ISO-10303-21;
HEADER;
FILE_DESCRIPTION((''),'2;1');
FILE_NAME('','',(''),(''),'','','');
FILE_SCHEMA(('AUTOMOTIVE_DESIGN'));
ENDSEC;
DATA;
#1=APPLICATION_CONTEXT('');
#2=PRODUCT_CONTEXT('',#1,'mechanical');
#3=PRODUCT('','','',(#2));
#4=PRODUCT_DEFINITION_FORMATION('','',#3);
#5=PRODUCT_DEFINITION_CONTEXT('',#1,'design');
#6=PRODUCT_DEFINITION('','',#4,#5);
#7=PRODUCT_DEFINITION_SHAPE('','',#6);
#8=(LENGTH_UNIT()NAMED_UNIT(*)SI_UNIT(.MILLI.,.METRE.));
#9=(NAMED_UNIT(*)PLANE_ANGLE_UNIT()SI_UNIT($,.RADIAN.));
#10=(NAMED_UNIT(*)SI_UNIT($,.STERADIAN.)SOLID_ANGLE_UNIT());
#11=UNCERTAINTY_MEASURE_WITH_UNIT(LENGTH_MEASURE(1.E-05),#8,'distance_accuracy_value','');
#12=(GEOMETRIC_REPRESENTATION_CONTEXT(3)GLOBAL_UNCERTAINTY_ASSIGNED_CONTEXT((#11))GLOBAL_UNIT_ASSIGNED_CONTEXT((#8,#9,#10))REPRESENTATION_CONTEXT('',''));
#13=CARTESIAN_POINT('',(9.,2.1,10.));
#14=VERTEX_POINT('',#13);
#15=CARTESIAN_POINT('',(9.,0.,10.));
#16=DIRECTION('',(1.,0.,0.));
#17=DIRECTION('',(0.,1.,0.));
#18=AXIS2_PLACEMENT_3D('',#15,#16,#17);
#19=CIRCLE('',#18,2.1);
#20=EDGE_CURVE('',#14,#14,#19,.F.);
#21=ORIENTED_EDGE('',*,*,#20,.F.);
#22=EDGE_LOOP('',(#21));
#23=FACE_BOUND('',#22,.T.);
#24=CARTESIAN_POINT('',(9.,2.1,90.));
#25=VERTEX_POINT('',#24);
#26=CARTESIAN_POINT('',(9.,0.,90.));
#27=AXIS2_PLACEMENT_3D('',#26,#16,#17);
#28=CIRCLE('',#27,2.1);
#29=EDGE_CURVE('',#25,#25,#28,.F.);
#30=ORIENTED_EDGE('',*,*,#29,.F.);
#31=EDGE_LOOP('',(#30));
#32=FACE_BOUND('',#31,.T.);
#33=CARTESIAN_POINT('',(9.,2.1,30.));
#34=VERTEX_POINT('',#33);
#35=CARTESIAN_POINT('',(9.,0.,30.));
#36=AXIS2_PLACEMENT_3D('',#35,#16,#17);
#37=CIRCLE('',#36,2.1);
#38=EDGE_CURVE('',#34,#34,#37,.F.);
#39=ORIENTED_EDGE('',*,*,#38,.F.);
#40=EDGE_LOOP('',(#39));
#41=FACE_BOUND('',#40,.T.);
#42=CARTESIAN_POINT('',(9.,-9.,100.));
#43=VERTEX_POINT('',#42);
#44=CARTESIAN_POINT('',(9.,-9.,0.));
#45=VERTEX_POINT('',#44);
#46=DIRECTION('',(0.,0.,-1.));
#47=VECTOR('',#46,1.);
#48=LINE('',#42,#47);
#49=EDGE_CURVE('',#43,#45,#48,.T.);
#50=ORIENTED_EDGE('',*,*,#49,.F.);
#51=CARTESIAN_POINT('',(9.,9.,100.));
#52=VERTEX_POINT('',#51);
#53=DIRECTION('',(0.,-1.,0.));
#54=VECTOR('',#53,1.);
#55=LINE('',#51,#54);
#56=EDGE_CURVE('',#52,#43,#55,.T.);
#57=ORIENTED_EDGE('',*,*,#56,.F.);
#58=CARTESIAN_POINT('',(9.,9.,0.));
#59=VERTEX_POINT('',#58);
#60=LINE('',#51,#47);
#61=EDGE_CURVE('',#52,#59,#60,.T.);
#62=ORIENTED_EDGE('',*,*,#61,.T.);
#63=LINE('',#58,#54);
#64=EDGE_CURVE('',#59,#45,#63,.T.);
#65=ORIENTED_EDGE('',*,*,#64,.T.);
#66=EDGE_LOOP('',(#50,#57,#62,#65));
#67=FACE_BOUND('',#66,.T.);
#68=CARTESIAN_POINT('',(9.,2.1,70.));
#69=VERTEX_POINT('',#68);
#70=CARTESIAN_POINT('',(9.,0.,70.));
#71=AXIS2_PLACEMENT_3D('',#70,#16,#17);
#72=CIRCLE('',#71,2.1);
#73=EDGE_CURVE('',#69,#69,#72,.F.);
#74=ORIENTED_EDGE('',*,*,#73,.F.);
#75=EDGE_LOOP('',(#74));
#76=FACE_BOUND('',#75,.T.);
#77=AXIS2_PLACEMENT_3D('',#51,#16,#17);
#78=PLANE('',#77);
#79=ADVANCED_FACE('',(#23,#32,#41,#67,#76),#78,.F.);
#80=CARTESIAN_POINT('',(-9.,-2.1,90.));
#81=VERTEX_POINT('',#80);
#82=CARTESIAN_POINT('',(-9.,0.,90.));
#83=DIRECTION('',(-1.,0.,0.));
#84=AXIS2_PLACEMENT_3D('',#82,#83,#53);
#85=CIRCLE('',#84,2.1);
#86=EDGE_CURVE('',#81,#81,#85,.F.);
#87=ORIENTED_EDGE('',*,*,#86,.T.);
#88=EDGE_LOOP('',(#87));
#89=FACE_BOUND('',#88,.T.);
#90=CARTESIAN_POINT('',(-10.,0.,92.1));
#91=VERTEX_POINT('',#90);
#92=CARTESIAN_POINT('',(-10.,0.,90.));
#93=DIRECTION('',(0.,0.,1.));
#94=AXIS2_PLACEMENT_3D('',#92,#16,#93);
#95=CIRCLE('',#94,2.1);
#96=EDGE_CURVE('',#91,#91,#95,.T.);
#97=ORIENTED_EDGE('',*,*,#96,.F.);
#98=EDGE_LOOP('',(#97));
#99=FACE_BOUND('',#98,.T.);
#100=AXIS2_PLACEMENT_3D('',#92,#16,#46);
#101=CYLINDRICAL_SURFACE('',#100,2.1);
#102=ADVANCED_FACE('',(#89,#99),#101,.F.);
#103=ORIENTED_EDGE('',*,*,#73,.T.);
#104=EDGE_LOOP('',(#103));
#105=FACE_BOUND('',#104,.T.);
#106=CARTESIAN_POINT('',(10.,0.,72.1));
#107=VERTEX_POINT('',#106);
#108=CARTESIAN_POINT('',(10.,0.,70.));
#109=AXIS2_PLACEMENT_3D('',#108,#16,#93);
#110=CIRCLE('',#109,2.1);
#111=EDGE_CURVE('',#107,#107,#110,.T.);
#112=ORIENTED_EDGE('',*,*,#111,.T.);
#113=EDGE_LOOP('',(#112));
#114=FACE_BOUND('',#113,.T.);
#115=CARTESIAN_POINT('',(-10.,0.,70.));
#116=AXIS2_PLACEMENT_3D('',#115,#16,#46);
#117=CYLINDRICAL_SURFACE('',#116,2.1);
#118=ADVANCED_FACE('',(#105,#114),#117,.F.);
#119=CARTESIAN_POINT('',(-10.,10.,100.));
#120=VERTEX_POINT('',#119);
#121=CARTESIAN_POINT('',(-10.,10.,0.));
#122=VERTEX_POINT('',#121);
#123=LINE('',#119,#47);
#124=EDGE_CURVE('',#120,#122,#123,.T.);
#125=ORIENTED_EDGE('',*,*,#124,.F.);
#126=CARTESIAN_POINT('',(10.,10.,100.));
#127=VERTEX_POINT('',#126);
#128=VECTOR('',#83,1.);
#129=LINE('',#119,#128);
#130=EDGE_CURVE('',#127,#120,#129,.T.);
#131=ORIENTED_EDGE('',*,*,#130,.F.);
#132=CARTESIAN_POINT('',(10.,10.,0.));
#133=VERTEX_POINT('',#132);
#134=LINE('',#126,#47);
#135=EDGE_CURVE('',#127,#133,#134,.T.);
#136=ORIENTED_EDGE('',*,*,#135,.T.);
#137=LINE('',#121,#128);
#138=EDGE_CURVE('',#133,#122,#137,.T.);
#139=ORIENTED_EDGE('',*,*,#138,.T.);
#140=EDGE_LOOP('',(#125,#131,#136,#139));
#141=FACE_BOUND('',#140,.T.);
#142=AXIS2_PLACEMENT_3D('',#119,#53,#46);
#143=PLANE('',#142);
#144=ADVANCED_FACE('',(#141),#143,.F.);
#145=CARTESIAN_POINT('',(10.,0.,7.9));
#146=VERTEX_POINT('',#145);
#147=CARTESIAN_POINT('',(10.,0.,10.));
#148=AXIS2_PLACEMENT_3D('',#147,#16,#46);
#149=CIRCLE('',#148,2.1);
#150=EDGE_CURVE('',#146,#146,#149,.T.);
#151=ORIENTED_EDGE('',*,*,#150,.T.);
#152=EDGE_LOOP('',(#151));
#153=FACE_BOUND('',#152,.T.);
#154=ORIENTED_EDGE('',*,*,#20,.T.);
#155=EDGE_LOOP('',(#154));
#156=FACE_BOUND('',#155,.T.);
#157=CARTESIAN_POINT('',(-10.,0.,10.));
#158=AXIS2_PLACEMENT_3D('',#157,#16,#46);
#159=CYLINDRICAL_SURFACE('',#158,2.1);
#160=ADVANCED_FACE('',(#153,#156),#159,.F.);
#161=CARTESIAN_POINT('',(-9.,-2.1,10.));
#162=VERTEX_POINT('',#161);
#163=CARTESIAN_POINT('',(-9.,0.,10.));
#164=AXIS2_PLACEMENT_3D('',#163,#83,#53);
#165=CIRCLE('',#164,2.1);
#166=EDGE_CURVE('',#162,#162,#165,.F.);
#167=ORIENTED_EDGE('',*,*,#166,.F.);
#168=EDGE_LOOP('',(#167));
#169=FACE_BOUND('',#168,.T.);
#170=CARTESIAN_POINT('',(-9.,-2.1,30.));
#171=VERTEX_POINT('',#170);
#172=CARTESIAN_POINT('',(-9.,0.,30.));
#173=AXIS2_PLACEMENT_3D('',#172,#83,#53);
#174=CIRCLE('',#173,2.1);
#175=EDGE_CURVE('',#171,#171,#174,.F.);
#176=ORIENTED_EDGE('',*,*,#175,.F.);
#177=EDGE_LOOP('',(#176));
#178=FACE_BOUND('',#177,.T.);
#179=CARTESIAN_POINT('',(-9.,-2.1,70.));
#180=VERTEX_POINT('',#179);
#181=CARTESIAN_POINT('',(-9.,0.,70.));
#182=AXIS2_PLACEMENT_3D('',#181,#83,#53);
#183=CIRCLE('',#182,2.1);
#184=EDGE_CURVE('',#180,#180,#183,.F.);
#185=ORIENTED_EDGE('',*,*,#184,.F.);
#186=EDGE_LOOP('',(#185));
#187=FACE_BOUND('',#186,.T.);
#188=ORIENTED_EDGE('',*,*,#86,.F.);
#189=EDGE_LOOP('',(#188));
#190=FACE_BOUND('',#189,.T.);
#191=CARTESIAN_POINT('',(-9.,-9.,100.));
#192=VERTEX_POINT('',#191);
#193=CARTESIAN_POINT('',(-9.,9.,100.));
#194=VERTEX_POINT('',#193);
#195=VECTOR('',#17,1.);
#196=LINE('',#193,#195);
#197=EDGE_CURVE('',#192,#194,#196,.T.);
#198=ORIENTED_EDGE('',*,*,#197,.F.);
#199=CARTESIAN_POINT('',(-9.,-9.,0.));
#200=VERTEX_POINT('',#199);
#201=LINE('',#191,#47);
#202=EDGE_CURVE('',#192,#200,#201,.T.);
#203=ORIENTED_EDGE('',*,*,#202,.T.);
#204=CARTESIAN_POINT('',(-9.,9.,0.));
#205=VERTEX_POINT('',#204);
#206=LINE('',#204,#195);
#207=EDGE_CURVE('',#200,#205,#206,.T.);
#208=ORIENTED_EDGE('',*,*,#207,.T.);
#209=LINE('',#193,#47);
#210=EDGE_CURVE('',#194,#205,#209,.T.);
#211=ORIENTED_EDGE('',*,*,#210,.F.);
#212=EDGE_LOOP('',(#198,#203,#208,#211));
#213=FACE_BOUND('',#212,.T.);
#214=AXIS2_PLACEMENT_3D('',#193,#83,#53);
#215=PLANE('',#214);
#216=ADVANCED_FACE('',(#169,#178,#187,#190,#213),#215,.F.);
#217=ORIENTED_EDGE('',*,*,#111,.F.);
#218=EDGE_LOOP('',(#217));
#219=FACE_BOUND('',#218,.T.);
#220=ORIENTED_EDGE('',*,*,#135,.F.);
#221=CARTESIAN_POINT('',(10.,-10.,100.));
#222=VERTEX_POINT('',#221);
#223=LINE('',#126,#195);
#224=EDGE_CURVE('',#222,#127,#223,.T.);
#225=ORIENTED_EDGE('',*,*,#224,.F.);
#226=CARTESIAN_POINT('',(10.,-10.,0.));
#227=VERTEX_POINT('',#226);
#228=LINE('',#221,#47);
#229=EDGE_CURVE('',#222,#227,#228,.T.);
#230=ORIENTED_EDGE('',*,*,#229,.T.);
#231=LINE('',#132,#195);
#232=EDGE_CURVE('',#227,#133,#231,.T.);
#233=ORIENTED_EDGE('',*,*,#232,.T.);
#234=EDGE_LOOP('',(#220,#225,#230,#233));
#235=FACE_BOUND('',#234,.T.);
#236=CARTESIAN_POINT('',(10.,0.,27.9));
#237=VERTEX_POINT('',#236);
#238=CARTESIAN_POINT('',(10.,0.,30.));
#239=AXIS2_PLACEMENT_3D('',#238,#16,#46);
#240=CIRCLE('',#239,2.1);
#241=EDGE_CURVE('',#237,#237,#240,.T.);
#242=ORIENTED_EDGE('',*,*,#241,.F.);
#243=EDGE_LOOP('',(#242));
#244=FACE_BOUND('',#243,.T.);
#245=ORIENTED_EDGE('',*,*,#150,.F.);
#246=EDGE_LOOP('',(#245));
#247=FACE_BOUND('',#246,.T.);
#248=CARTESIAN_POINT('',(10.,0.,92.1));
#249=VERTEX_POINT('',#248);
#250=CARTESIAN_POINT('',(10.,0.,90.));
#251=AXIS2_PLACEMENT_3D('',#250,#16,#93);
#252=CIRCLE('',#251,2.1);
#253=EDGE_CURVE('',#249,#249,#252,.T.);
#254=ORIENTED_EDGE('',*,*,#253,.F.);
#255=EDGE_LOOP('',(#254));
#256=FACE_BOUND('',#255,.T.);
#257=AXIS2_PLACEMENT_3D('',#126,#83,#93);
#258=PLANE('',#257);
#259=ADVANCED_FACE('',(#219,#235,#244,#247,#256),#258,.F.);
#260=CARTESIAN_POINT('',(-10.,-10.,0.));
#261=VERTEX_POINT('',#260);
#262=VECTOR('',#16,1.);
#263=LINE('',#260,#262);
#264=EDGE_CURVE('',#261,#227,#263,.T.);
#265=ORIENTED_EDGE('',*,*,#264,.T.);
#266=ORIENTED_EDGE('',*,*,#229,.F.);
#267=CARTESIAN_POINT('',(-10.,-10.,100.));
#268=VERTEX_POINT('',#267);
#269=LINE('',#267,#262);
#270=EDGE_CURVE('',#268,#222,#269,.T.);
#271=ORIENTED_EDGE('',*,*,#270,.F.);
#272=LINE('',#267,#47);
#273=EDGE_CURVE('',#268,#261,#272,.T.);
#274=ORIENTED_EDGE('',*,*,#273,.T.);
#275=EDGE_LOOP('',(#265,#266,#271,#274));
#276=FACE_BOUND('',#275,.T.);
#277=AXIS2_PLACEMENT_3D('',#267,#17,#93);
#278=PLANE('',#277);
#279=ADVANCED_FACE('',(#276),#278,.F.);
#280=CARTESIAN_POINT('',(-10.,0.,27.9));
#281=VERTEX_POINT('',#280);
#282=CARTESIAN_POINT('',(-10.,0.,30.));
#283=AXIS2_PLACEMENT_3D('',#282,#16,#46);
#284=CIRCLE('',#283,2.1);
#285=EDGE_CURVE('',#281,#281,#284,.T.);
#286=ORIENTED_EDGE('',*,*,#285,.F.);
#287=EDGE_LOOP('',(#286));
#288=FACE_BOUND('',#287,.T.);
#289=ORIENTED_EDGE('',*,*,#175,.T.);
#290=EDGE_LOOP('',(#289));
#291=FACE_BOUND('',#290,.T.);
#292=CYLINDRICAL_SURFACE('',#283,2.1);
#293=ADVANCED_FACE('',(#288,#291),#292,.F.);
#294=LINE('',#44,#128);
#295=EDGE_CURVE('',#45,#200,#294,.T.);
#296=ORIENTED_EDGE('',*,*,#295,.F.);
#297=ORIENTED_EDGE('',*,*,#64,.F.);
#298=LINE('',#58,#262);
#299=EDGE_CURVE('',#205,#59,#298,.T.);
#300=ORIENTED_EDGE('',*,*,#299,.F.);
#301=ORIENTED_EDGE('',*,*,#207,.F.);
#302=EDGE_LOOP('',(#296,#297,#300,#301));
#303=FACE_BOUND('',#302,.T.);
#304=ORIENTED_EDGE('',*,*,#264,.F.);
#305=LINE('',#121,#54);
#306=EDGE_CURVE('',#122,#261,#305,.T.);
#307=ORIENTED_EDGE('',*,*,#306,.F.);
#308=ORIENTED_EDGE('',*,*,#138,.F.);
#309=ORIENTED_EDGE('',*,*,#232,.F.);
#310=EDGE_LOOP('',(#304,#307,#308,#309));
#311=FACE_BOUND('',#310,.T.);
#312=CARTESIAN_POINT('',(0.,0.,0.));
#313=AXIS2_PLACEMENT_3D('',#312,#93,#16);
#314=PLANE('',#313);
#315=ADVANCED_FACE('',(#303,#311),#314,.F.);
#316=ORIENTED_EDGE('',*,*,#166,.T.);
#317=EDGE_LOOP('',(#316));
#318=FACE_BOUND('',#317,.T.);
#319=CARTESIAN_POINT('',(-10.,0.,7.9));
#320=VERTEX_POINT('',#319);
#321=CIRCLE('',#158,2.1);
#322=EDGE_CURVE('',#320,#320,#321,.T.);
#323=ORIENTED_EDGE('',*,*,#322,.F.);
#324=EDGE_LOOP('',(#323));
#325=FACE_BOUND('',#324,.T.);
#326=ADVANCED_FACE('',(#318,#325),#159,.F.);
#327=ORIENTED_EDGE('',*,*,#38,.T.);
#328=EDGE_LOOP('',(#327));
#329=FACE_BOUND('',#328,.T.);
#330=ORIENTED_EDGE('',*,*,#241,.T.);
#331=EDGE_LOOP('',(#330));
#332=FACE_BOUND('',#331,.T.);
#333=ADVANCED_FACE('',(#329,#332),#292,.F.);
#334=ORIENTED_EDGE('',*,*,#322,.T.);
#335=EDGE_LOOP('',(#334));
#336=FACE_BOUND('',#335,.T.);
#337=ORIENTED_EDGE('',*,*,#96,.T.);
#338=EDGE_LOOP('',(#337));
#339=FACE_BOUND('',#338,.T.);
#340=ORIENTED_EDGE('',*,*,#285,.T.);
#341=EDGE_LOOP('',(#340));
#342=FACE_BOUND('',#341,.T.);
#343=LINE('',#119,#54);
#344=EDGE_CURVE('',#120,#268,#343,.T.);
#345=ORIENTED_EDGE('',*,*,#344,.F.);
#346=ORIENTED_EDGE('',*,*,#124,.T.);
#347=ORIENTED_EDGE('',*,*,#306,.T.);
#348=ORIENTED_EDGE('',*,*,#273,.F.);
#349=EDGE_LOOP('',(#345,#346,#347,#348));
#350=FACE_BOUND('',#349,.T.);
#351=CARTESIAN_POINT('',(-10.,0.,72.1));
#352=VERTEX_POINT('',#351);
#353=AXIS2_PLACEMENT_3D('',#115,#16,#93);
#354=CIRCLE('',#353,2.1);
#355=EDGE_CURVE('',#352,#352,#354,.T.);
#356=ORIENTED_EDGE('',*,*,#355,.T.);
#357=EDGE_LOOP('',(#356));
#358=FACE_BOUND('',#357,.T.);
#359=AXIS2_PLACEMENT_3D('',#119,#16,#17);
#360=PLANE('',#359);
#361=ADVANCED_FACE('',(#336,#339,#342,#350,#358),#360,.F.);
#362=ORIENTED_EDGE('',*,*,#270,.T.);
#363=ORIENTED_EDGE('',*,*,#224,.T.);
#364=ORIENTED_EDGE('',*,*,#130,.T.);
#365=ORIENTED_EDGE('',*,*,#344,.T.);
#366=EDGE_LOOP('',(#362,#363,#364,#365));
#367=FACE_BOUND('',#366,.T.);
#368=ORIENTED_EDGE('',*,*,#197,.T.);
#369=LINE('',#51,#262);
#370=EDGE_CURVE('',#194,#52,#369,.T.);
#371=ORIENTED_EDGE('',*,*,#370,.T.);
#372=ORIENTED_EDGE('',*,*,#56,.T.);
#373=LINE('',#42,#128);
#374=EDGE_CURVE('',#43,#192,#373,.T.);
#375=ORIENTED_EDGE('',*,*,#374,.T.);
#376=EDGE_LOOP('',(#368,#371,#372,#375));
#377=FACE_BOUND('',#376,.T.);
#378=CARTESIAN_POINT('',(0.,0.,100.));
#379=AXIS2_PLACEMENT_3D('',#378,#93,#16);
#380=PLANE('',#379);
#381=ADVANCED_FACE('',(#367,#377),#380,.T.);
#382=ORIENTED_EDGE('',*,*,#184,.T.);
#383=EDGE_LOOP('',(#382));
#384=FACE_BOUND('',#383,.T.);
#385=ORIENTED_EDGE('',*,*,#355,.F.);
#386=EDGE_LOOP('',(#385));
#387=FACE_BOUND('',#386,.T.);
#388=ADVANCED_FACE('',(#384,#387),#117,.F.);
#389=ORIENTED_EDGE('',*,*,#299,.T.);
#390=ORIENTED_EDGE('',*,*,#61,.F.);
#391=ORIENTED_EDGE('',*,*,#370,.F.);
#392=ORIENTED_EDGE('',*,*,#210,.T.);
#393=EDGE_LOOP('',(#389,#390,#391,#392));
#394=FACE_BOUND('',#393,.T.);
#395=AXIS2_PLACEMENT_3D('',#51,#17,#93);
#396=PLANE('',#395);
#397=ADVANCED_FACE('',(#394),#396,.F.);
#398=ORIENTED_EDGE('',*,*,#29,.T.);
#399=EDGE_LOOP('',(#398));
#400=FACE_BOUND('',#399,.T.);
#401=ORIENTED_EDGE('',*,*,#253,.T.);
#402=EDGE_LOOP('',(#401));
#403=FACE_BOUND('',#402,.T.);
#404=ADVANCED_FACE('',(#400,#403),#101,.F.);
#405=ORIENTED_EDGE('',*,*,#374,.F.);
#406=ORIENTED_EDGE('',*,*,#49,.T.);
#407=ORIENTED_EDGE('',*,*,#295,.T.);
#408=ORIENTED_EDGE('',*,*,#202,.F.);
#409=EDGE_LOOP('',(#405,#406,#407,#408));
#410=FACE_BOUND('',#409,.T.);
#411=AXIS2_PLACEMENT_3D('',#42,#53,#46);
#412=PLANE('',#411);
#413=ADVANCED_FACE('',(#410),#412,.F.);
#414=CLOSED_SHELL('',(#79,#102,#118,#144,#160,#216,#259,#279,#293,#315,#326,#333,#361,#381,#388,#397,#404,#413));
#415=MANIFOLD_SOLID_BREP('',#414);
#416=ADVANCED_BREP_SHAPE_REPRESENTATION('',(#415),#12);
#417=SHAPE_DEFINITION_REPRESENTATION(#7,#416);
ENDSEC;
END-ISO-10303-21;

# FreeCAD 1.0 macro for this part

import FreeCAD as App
import Part
import Sketcher
from FreeCAD import Vector

doc = App.newDocument("Part")
body = doc.addObject("PartDesign::Body", "Body")

# Sketch on XY plane
sketch1 = body.newObject("Sketcher::SketchObject", "Sketch")
sketch1.AttachmentSupport = (doc.getObject("XY_Plane"), [""])
sketch1.MapMode = "FlatFace"
sketch1.addGeometry([
    Part.LineSegment(Vector(-10, 10, 0), Vector(-10, -10, 0)),
    Part.LineSegment(Vector(-10, -10, 0), Vector(10, -10, 0)),
    Part.LineSegment(Vector(10, -10, 0), Vector(10, 10, 0)),
    Part.LineSegment(Vector(10, 10, 0), Vector(-10, 10, 0)),
], False)
sketch1.addConstraint([
    Sketcher.Constraint("Coincident", 0, 2, 1, 1),
    Sketcher.Constraint("Coincident", 1, 2, 2, 1),
    Sketcher.Constraint("Coincident", 2, 2, 3, 1),
    Sketcher.Constraint("Coincident", 3, 2, 0, 1),
    Sketcher.Constraint("Vertical", 0),
    Sketcher.Constraint("Horizontal", 1),
    Sketcher.Constraint("Vertical", 2),
    Sketcher.Constraint("Horizontal", 3),
    Sketcher.Constraint("Symmetric", 0, 2, 2, 2, -1, 1),
    Sketcher.Constraint("Equal", 3, 0),
    Sketcher.Constraint("DistanceX", 1, 1, 1, 2, 20.0),
])
pad1 = body.newObject("PartDesign::Pad", "Pad")
pad1.Profile = sketch1
pad1.Length = 100

# Sketch on YZ plane
sketch2 = body.newObject("Sketcher::SketchObject", "Sketch001")
sketch2.AttachmentSupport = (doc.getObject("YZ_Plane"), [""])
sketch2.MapMode = "FlatFace"
sketch2.AttachmentOffset = App.Placement(Vector(0, 0, 10), App.Rotation())
sketch2.addGeometry([
    Part.Circle(Vector(0, 10, 0), Vector(0, 0, 1), 2.1),
    Part.Circle(Vector(0, 30, 0), Vector(0, 0, 1), 2.1),
    Part.Circle(Vector(0, 90, 0), Vector(0, 0, 1), 2.1),
    Part.Circle(Vector(0, 70, 0), Vector(0, 0, 1), 2.1),
], False)
sketch2.addConstraint([
    Sketcher.Constraint("Equal", 0, 1),
    Sketcher.Constraint("Equal", 1, 2),
    Sketcher.Constraint("Equal", 2, 3),
    Sketcher.Constraint("PointOnObject", 0, 3, -2),
    Sketcher.Constraint("PointOnObject", 1, 3, -2),
    Sketcher.Constraint("PointOnObject", 2, 3, -2),
    Sketcher.Constraint("PointOnObject", 3, 3, -2),
    Sketcher.Constraint("Diameter", 0, 4.2),
    Sketcher.Constraint("DistanceY", -1, 1, 0, 3, 10.0),
    Sketcher.Constraint("DistanceY", -1, 1, 1, 3, 30.0),
    Sketcher.Constraint("DistanceY", -1, 1, 2, 3, 90.0),
    Sketcher.Constraint("DistanceY", -1, 1, 3, 3, 70.0),
])
pocket1 = body.newObject("PartDesign::Pocket", "Pocket")
pocket1.Profile = sketch2
pocket1.Type = "ThroughAll"

# Sketch on XY plane
sketch3 = body.newObject("Sketcher::SketchObject", "Sketch002")
sketch3.AttachmentSupport = (doc.getObject("XY_Plane"), [""])
sketch3.MapMode = "FlatFace"
sketch3.addGeometry([
    Part.LineSegment(Vector(9, 9, 0), Vector(9, -9, 0)),
    Part.LineSegment(Vector(9, -9, 0), Vector(-9, -9, 0)),
    Part.LineSegment(Vector(-9, -9, 0), Vector(-9, 9, 0)),
    Part.LineSegment(Vector(-9, 9, 0), Vector(9, 9, 0)),
], False)
sketch3.addConstraint([
    Sketcher.Constraint("Coincident", 0, 2, 1, 1),
    Sketcher.Constraint("Coincident", 1, 2, 2, 1),
    Sketcher.Constraint("Coincident", 2, 2, 3, 1),
    Sketcher.Constraint("Coincident", 3, 2, 0, 1),
    Sketcher.Constraint("Vertical", 0),
    Sketcher.Constraint("Horizontal", 1),
    Sketcher.Constraint("Vertical", 2),
    Sketcher.Constraint("Horizontal", 3),
    Sketcher.Constraint("Symmetric", 0, 2, 2, 2, -1, 1),
    Sketcher.Constraint("Equal", 3, 0),
    Sketcher.Constraint("DistanceX", 1, 2, 1, 1, 18.0),
])
pocket2 = body.newObject("PartDesign::Pocket", "Pocket001")
pocket2.Profile = sketch3
pocket2.Type = "ThroughAll"
pocket2.Reversed = True

doc.recompute()
